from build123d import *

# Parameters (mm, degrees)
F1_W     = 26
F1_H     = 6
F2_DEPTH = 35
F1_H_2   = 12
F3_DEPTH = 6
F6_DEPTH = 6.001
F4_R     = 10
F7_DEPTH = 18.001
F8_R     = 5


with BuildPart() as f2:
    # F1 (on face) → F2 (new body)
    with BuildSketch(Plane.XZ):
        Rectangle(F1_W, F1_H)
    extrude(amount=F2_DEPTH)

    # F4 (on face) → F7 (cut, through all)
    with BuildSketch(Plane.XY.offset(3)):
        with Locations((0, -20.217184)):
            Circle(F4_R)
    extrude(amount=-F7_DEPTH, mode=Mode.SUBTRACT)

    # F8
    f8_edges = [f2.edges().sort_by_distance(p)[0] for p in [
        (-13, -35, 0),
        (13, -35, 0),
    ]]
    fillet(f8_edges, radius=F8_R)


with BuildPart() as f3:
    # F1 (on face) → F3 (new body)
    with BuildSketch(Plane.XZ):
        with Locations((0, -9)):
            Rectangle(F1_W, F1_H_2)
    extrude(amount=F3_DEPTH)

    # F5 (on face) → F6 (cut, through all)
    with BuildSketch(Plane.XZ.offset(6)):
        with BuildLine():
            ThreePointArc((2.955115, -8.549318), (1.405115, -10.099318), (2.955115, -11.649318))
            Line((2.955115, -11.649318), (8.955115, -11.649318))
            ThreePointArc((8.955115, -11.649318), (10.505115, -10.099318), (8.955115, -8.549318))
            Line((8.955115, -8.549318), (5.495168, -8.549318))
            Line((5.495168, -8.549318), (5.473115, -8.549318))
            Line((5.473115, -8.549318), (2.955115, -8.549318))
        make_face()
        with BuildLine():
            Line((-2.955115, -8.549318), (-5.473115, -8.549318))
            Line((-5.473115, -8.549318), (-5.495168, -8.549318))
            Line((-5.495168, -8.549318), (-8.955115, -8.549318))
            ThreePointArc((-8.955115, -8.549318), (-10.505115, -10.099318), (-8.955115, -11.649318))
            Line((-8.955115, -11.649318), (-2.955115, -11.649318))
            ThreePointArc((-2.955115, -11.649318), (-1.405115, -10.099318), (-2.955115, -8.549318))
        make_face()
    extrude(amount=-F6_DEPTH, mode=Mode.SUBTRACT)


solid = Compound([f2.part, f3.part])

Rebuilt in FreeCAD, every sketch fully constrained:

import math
import FreeCAD as App
import Part
import Sketcher

V = App.Vector
Q = App.Units.Quantity


def edges_at(feature, points):
    """Names of the edges that pass closest to the given points."""
    edges = feature.Shape.Edges
    near = lambda p: min(range(len(edges)), key=lambda i: edges[i].distToShape(Part.Vertex(*p))[0])
    return sorted({f"Edge{near(p) + 1}" for p in points})

doc = App.newDocument("Part")
body = doc.addObject("PartDesign::Body", "Body")

# Sketch on XZ plane
sketch1 = body.newObject("Sketcher::SketchObject", "Sketch")
sketch1.AttachmentSupport = (doc.getObject("XZ_Plane"), [""])
sketch1.MapMode = "FlatFace"
sketch1.addGeometry(Part.LineSegment(V(-13, 3, 0), V(-13, -3, 0)), False)
sketch1.addGeometry(Part.LineSegment(V(-13, -3, 0), V(13, -3, 0)), False)
sketch1.addGeometry(Part.LineSegment(V(13, -3, 0), V(13, 3, 0)), False)
sketch1.addGeometry(Part.LineSegment(V(13, 3, 0), V(-13, 3, 0)), False)
sketch1.addConstraint(Sketcher.Constraint("Coincident", 0, 2, 1, 1))
sketch1.addConstraint(Sketcher.Constraint("Coincident", 1, 2, 2, 1))
sketch1.addConstraint(Sketcher.Constraint("Coincident", 2, 2, 3, 1))
sketch1.addConstraint(Sketcher.Constraint("Coincident", 3, 2, 0, 1))
sketch1.addConstraint(Sketcher.Constraint("Vertical", 0))
sketch1.addConstraint(Sketcher.Constraint("Horizontal", 1))
sketch1.addConstraint(Sketcher.Constraint("Vertical", 2))
sketch1.addConstraint(Sketcher.Constraint("Horizontal", 3))
sketch1.addConstraint(Sketcher.Constraint("Symmetric", 0, 2, 2, 2, -1, 1))
sketch1.addConstraint(Sketcher.Constraint("DistanceX", 1, 1, 1, 2, Q("26 mm")))
sketch1.addConstraint(Sketcher.Constraint("DistanceY", 0, 2, 0, 1, Q("6 mm")))
pad1 = body.newObject("PartDesign::Pad", "Pad")
pad1.Profile = sketch1
pad1.Length = 35

# Sketch on XY plane
sketch2 = body.newObject("Sketcher::SketchObject", "Sketch001")
sketch2.AttachmentSupport = (doc.getObject("XY_Plane"), [""])
sketch2.MapMode = "FlatFace"
sketch2.AttachmentOffset = App.Placement(V(0, 0, 3), App.Rotation())
sketch2.addGeometry(Part.Circle(V(0, -20, 0), V(0, 0, 1), 10), False)
sketch2.addConstraint(Sketcher.Constraint("PointOnObject", 0, 3, -2))
sketch2.addConstraint(Sketcher.Constraint("Diameter", 0, Q("20 mm")))
sketch2.addConstraint(Sketcher.Constraint("DistanceY", 0, 3, -1, 1, Q("20.217184 mm")))
pocket1 = body.newObject("PartDesign::Pocket", "Pocket")
pocket1.Profile = sketch2
pocket1.Type = "ThroughAll"
doc.recompute()

fillet = body.newObject("PartDesign::Fillet", "Fillet")
fillet.Base = (pocket1, edges_at(pocket1, [(-13, -35, 0), (13, -35, 0)]))
fillet.Radius = 5
body2 = doc.addObject("PartDesign::Body", "Body001")

# Sketch on XZ plane
sketch3 = body2.newObject("Sketcher::SketchObject", "Sketch002")
sketch3.AttachmentSupport = (doc.getObject("XZ_Plane001"), [""])
sketch3.MapMode = "FlatFace"
sketch3.addGeometry(Part.LineSegment(V(-13, -3, 0), V(-13, -15, 0)), False)
sketch3.addGeometry(Part.LineSegment(V(-13, -15, 0), V(13, -15, 0)), False)
sketch3.addGeometry(Part.LineSegment(V(13, -15, 0), V(13, -3, 0)), False)
sketch3.addGeometry(Part.LineSegment(V(13, -3, 0), V(-13, -3, 0)), False)
sketch3.addConstraint(Sketcher.Constraint("Coincident", 0, 2, 1, 1))
sketch3.addConstraint(Sketcher.Constraint("Coincident", 1, 2, 2, 1))
sketch3.addConstraint(Sketcher.Constraint("Coincident", 2, 2, 3, 1))
sketch3.addConstraint(Sketcher.Constraint("Coincident", 3, 2, 0, 1))
sketch3.addConstraint(Sketcher.Constraint("Vertical", 0))
sketch3.addConstraint(Sketcher.Constraint("Horizontal", 1))
sketch3.addConstraint(Sketcher.Constraint("Vertical", 2))
sketch3.addConstraint(Sketcher.Constraint("Horizontal", 3))
sketch3.addConstraint(Sketcher.Constraint("DistanceX", 1, 1, 1, 2, Q("26 mm")))
sketch3.addConstraint(Sketcher.Constraint("DistanceY", 0, 2, 0, 1, Q("12 mm")))
sketch3.addConstraint(Sketcher.Constraint("DistanceX", 0, 2, -1, 1, Q("13 mm")))
sketch3.addConstraint(Sketcher.Constraint("DistanceY", 0, 2, -1, 1, Q("15 mm")))
pad2 = body2.newObject("PartDesign::Pad", "Pad001")
pad2.Profile = sketch3
pad2.Length = 6

# Sketch on XZ plane
sketch4 = body2.newObject("Sketcher::SketchObject", "Sketch003")
sketch4.AttachmentSupport = (doc.getObject("XZ_Plane001"), [""])
sketch4.MapMode = "FlatFace"
sketch4.AttachmentOffset = App.Placement(V(0, 0, 6), App.Rotation())
sketch4.addGeometry(Part.ArcOfCircle(Part.Circle(V(3, -10.1, 0), V(0, 0, 1), 1.6), math.radians(90), math.radians(270)), False)
sketch4.addGeometry(Part.LineSegment(V(3, -11.6, 0), V(9, -11.6, 0)), False)
sketch4.addGeometry(Part.ArcOfCircle(Part.Circle(V(9, -10.1, 0), V(0, 0, 1), 1.6), math.radians(-90), math.radians(90)), False)
sketch4.addGeometry(Part.LineSegment(V(9, -8.5, 0), V(3, -8.5, 0)), False)
sketch4.addGeometry(Part.LineSegment(V(-3, -8.5, 0), V(-9, -8.5, 0)), False)
sketch4.addGeometry(Part.ArcOfCircle(Part.Circle(V(-9, -10.1, 0), V(0, 0, 1), 1.6), math.radians(90), math.radians(270)), False)
sketch4.addGeometry(Part.LineSegment(V(-9, -11.6, 0), V(-3, -11.6, 0)), False)
sketch4.addGeometry(Part.ArcOfCircle(Part.Circle(V(-3, -10.1, 0), V(0, 0, 1), 1.6), math.radians(-90), math.radians(90)), False)
sketch4.addConstraint(Sketcher.Constraint("Tangent", 0, 2, 1, 1))
sketch4.addConstraint(Sketcher.Constraint("Tangent", 1, 2, 2, 1))
sketch4.addConstraint(Sketcher.Constraint("Tangent", 2, 2, 3, 1))
sketch4.addConstraint(Sketcher.Constraint("Tangent", 3, 2, 0, 1))
sketch4.addConstraint(Sketcher.Constraint("Tangent", 4, 2, 5, 1))
sketch4.addConstraint(Sketcher.Constraint("Tangent", 5, 2, 6, 1))
sketch4.addConstraint(Sketcher.Constraint("Tangent", 6, 2, 7, 1))
sketch4.addConstraint(Sketcher.Constraint("Tangent", 7, 2, 4, 1))
sketch4.addConstraint(Sketcher.Constraint("Horizontal", 1))
sketch4.addConstraint(Sketcher.Constraint("Horizontal", 3))
sketch4.addConstraint(Sketcher.Constraint("Horizontal", 4))
sketch4.addConstraint(Sketcher.Constraint("Horizontal", 6))
sketch4.addConstraint(Sketcher.Constraint("Equal", 2, 5))
sketch4.addConstraint(Sketcher.Constraint("Symmetric", 2, 3, 5, 3, -2))
sketch4.addConstraint(Sketcher.Constraint("Equal", 3, 4))
sketch4.addConstraint(Sketcher.Constraint("DistanceX", 1, 1, 1, 2, Q("6 mm")))
sketch4.addConstraint(Sketcher.Constraint("Radius", 0, Q("1.55 mm")))
sketch4.addConstraint(Sketcher.Constraint("DistanceY", 0, 2, -1, 1, Q("11.649318 mm")))
sketch4.addConstraint(Sketcher.Constraint("DistanceX", 5, 3, 0, 3, Q("11.91023 mm")))
pocket2 = body2.newObject("PartDesign::Pocket", "Pocket001")
pocket2.Profile = sketch4
pocket2.Type = "ThroughAll"

doc.recompute()
